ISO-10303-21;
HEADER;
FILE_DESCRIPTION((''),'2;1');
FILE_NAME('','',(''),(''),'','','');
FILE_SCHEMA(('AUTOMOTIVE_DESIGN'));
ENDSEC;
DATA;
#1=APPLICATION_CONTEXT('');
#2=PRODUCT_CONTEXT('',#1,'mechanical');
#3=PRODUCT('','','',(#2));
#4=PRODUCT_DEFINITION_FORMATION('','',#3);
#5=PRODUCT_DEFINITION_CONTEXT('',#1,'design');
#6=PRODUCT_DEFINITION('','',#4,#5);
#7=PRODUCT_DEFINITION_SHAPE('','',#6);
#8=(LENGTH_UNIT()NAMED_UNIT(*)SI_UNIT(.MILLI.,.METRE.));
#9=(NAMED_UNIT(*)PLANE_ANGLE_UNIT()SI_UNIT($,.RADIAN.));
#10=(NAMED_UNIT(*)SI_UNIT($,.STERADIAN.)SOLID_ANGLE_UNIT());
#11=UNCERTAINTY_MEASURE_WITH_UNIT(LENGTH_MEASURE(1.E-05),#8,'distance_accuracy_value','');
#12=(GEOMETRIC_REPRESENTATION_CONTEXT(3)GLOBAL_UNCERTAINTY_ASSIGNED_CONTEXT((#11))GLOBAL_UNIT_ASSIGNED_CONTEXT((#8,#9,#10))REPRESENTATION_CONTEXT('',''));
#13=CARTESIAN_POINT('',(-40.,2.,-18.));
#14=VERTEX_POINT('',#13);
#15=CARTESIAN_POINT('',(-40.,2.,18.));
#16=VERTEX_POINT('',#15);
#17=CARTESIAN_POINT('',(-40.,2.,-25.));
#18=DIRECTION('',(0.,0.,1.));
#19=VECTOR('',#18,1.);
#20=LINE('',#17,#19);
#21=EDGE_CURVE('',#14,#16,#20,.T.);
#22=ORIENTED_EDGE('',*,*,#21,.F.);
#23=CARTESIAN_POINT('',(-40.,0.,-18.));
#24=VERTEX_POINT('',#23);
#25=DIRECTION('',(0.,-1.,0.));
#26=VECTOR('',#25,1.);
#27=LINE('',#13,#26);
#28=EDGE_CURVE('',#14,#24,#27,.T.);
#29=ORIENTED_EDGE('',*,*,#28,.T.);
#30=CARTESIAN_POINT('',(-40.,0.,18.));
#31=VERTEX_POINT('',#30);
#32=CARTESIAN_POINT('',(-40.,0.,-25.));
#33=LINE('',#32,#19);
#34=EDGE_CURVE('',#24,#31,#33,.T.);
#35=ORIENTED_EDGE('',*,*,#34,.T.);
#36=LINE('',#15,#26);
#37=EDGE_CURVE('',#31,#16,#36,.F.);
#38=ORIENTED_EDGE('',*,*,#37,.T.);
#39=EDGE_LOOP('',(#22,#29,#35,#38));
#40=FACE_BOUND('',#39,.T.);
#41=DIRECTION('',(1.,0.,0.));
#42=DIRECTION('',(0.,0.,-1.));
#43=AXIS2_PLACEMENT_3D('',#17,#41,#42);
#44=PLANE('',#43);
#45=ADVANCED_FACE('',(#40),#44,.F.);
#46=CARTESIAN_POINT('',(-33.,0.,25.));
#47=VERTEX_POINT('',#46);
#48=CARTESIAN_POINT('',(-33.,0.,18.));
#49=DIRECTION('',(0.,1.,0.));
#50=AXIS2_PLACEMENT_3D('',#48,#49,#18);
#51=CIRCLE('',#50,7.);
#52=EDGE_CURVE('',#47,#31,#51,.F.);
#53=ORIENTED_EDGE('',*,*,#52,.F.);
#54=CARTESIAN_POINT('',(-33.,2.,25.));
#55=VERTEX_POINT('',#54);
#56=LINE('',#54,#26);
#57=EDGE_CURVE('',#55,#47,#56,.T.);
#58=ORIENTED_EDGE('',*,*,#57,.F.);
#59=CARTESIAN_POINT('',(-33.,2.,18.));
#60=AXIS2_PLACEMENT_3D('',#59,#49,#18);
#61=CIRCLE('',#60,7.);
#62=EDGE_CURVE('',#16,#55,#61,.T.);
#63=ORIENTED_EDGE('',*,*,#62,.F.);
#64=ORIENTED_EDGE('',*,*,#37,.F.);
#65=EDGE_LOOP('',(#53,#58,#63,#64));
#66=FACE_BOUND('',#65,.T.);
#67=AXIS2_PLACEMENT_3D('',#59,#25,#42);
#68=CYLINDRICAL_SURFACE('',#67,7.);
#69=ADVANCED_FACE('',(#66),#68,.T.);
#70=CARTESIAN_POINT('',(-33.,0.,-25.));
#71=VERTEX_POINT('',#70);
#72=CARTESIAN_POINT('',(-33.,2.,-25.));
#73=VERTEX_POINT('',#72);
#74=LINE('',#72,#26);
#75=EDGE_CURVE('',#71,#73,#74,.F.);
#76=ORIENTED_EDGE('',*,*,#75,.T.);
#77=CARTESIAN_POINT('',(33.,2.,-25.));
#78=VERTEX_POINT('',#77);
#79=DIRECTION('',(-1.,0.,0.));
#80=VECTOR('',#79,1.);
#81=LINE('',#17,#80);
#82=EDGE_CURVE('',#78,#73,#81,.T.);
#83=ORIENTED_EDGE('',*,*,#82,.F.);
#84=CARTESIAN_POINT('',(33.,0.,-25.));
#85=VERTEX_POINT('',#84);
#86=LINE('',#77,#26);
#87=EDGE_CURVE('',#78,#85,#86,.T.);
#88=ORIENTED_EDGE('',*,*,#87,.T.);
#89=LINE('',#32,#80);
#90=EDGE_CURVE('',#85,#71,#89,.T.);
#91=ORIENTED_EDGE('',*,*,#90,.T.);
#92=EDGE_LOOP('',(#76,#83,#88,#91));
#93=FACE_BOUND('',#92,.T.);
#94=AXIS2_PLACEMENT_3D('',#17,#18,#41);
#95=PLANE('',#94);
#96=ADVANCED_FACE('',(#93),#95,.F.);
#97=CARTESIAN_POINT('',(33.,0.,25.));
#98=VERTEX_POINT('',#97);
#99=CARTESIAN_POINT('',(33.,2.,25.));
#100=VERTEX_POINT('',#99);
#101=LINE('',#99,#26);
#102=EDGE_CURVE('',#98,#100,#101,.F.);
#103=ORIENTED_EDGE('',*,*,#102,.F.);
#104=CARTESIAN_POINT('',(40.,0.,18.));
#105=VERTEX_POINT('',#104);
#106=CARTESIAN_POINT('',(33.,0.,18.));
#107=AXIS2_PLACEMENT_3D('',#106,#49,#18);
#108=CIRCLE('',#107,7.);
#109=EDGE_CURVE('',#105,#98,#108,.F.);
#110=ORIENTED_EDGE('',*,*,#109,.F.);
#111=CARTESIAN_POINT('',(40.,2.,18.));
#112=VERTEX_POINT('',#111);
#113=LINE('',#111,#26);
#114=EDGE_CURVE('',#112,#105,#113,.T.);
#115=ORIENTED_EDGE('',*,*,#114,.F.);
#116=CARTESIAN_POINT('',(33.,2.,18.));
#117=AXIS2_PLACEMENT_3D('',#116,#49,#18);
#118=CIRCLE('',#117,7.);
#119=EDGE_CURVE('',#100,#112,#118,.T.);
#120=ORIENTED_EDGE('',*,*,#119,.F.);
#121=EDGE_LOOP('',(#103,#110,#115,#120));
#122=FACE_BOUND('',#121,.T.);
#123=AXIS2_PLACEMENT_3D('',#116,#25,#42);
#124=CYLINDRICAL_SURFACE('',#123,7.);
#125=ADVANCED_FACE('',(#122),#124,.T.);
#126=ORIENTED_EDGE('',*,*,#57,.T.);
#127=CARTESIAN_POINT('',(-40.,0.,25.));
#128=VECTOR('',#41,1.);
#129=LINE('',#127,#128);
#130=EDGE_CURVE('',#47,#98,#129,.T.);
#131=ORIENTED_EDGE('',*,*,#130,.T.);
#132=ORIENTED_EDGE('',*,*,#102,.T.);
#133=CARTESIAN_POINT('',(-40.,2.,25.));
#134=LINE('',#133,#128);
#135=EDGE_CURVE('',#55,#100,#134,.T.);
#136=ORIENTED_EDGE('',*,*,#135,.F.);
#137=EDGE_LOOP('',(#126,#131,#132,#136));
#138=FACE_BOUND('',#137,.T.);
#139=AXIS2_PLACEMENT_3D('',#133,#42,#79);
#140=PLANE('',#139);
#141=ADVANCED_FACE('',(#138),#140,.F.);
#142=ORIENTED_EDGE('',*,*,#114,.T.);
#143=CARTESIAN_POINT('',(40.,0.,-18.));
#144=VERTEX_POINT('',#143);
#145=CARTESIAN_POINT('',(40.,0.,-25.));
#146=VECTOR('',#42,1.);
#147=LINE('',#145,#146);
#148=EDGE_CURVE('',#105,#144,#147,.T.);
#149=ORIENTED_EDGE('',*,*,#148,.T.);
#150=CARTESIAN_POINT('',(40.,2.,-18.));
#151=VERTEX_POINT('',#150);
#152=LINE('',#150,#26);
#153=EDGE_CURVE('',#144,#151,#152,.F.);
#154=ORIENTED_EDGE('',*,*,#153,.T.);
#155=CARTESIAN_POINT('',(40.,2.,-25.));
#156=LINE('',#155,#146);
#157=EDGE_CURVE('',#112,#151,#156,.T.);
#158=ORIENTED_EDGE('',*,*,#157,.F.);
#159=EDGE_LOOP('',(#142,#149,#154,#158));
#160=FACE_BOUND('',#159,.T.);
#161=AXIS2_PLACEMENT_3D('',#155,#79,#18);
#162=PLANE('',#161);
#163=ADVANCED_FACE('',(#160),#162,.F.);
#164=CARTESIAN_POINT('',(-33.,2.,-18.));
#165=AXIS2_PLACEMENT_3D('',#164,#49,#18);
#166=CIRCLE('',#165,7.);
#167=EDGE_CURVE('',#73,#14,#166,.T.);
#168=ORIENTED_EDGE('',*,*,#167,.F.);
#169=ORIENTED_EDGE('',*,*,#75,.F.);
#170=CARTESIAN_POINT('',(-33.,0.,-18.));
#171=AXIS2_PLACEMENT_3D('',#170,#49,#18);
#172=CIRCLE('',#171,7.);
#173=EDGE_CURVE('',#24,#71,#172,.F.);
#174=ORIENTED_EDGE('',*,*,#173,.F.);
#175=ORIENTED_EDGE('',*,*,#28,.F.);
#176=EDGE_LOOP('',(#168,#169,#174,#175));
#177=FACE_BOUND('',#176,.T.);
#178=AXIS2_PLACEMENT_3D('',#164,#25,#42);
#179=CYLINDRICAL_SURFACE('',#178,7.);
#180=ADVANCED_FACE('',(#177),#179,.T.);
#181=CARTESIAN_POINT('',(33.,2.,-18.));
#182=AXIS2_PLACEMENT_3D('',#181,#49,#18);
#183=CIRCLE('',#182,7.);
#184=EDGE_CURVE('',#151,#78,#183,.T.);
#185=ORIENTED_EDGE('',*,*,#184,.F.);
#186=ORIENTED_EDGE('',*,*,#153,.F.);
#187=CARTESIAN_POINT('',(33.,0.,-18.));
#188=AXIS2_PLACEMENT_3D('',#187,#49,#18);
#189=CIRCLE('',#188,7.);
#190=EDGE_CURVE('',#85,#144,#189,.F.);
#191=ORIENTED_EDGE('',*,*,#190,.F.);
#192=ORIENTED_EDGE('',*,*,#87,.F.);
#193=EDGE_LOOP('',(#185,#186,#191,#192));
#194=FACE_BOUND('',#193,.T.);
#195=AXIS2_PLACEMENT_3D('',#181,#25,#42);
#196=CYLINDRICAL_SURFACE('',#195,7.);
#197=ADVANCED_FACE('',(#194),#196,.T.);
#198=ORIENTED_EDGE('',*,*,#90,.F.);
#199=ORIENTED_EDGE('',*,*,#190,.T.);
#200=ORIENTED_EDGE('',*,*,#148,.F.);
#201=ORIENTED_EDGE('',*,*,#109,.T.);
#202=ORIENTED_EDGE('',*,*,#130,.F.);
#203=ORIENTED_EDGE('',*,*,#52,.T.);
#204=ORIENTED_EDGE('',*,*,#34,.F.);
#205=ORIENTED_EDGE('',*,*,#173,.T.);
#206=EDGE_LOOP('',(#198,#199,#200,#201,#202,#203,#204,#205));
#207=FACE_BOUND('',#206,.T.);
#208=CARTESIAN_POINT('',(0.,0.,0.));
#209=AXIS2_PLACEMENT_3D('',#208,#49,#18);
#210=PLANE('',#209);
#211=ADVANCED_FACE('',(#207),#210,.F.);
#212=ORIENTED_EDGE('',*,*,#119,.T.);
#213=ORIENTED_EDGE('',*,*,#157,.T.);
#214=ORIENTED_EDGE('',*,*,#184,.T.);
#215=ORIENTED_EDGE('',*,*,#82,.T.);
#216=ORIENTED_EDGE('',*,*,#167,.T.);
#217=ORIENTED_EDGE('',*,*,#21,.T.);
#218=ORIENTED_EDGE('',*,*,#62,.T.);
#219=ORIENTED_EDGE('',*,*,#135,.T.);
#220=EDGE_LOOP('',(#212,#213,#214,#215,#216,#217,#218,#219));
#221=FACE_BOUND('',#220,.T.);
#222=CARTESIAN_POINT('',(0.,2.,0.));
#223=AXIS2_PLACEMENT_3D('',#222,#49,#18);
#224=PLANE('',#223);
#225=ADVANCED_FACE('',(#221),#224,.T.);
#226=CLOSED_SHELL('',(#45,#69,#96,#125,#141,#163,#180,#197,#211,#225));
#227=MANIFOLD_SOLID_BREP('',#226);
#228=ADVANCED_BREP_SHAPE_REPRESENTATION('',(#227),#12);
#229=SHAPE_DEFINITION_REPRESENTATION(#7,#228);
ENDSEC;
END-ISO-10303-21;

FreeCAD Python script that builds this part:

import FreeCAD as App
import Part
import Sketcher
from FreeCAD import Vector
Q = App.Units.Quantity


def edges_at(feature, points):
    """Names of the edges that pass closest to the given points."""
    edges = feature.Shape.Edges
    near = lambda p: min(range(len(edges)), key=lambda i: edges[i].distToShape(Part.Vertex(*p))[0])
    return sorted({f"Edge{near(p) + 1}" for p in points})


def add_polygon(sketch, points):
    """Adds a closed chain of lines whose ends are joined by coincident constraints."""
    first, n = sketch.GeometryCount, len(points)
    for a, b in zip(points, points[1:] + points[:1]):
        sketch.addGeometry(Part.LineSegment(App.Vector(*a, 0), App.Vector(*b, 0)), False)
    for i in range(n):
        sketch.addConstraint(Sketcher.Constraint("Coincident", first + i, 2, first + (i + 1) % n, 1))

doc = App.newDocument("Part")
body = doc.addObject("PartDesign::Body", "Body")

# Sketch on XZ plane
sketch1 = doc.addObject("Sketcher::SketchObject", "Sketch")
body.addObject(sketch1)
sketch1.AttachmentSupport = (doc.XZ_Plane, [""])
sketch1.MapMode = "FlatFace"
add_polygon(sketch1, [(-40, -25), (-40, 25), (40, 25), (40, -25)])  # lines 0-3
sketch1.addConstraint([
    Sketcher.Constraint("Vertical", 0),
    Sketcher.Constraint("Horizontal", 1),
    Sketcher.Constraint("Vertical", 2),
    Sketcher.Constraint("Horizontal", 3),
    Sketcher.Constraint("Symmetric", 0, 2, 2, 2, -1, 1),
    Sketcher.Constraint("DistanceX", 1, 1, 1, 2, Q("80 mm")),
    Sketcher.Constraint("DistanceY", 0, 1, 0, 2, Q("50 mm")),
])
pad1 = doc.addObject("PartDesign::Pad", "Pad")
body.addObject(pad1)
pad1.Profile = sketch1
pad1.Length = 2
pad1.Reversed = True
doc.recompute()

fillet = doc.addObject("PartDesign::Fillet", "Fillet")
body.addObject(fillet)
fillet.Base = (pad1, edges_at(pad1, [
    (40, 1, 25),
    (-40, 1, 25),
    (-40, 1, -25),
    (40, 1, -25),
]))
fillet.Radius = 7

doc.recompute()
